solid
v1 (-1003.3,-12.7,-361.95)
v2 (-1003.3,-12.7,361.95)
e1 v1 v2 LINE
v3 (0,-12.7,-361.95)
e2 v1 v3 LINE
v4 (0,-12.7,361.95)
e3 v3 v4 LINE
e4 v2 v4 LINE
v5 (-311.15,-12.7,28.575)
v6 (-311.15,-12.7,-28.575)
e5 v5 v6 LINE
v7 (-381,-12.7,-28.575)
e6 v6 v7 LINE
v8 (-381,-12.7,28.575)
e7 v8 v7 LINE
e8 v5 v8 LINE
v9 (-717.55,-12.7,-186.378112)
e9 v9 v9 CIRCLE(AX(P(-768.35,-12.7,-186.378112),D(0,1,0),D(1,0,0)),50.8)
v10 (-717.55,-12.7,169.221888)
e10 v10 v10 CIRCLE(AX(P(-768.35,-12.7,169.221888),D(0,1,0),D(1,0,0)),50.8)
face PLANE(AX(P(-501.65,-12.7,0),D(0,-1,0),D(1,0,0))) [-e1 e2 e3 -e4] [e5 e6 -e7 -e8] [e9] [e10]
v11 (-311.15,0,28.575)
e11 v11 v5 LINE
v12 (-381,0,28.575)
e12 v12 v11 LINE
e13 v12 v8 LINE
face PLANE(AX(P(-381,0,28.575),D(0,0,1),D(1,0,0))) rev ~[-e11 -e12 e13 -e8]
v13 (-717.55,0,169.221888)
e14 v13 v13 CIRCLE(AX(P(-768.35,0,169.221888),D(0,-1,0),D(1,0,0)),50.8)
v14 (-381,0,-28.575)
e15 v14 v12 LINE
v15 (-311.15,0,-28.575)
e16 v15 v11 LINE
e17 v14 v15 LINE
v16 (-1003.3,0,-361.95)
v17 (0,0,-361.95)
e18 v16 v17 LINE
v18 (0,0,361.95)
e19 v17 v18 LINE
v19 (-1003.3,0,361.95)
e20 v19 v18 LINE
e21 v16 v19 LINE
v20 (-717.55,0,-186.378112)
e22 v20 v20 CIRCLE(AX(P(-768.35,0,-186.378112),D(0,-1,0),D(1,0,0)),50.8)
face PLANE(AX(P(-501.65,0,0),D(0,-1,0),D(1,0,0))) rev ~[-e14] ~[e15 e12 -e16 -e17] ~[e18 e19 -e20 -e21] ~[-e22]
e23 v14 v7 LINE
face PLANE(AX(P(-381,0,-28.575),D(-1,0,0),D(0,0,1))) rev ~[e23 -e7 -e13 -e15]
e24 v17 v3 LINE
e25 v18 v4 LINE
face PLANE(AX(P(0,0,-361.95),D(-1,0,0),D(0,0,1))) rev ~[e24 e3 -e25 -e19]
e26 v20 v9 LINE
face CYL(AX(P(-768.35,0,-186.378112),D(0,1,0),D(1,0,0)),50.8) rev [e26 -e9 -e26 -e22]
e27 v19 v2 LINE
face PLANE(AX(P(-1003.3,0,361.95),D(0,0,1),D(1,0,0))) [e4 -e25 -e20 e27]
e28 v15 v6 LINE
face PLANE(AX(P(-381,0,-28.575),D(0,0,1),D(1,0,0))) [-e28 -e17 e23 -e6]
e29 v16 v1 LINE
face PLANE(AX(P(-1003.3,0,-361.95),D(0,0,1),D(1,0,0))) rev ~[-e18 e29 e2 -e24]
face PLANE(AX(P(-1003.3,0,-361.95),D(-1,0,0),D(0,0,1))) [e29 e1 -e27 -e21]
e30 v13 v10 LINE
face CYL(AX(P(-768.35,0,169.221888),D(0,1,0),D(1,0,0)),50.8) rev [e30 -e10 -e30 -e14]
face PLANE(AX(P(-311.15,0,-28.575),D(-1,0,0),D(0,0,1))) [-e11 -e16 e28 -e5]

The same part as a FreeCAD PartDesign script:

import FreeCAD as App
import Part
import Sketcher

V = App.Vector
Q = App.Units.Quantity

doc = App.newDocument("Part")
body = doc.addObject("PartDesign::Body", "Body")

sketch1 = body.newObject("Sketcher::SketchObject", "Sketch")
sketch1.AttachmentSupport = (doc.getObject("XZ_Plane"), [""])
sketch1.MapMode = "FlatFace"
sketch1.addGeometry([
    Part.LineSegment(V(-1003, 362, 0), V(-1003, -362, 0)),
    Part.LineSegment(V(-1003, -362, 0), V(0, -362, 0)),
    Part.LineSegment(V(0, -362, 0), V(0, 362, 0)),
    Part.LineSegment(V(0, 362, 0), V(-1003, 362, 0)),
], False)
sketch1.addConstraint([
    Sketcher.Constraint("Coincident", 0, 2, 1, 1),
    Sketcher.Constraint("Coincident", 1, 2, 2, 1),
    Sketcher.Constraint("Coincident", 2, 2, 3, 1),
    Sketcher.Constraint("Coincident", 3, 2, 0, 1),
    Sketcher.Constraint("Vertical", 0),
    Sketcher.Constraint("Horizontal", 1),
    Sketcher.Constraint("Vertical", 2),
    Sketcher.Constraint("Horizontal", 3),
    Sketcher.Constraint("Symmetric", 1, 2, 2, 2, -1, 1),
    Sketcher.Constraint("DistanceX", 1, 1, 1, 2, Q("39.5 in")),
    Sketcher.Constraint("DistanceY", 0, 2, 0, 1, Q("28.5 in")),
])
pad1 = body.newObject("PartDesign::Pad", "Pad")
pad1.Profile = sketch1
pad1.Length = Q("0.5 in")

sketch2 = body.newObject("Sketcher::SketchObject", "Sketch001")
sketch2.AttachmentSupport = (doc.getObject("XZ_Plane"), [""])
sketch2.MapMode = "FlatFace"
sketch2.addGeometry([
    Part.LineSegment(V(-381, 29, 0), V(-381, -29, 0)),
    Part.LineSegment(V(-381, -29, 0), V(-311, -29, 0)),
    Part.LineSegment(V(-311, -29, 0), V(-311, 29, 0)),
    Part.LineSegment(V(-311, 29, 0), V(-381, 29, 0)),
], False)
sketch2.addConstraint([
    Sketcher.Constraint("Coincident", 0, 2, 1, 1),
    Sketcher.Constraint("Coincident", 1, 2, 2, 1),
    Sketcher.Constraint("Coincident", 2, 2, 3, 1),
    Sketcher.Constraint("Coincident", 3, 2, 0, 1),
    Sketcher.Constraint("Vertical", 0),
    Sketcher.Constraint("Horizontal", 1),
    Sketcher.Constraint("Vertical", 2),
    Sketcher.Constraint("Horizontal", 3),
    Sketcher.Constraint("DistanceX", 0, 2, -1, 1, Q("15 in")),
    Sketcher.Constraint("DistanceX", 1, 1, 1, 2, Q("2.75 in")),
    Sketcher.Constraint("DistanceY", 0, 2, 0, 1, Q("2.25 in")),
    Sketcher.Constraint("DistanceY", 0, 2, -1, 1, Q("1.125 in")),
])
pocket1 = body.newObject("PartDesign::Pocket", "Pocket")
pocket1.Profile = sketch2
pocket1.Type = "ThroughAll"
pocket1.Reversed = True

sketch3 = body.newObject("Sketcher::SketchObject", "Sketch002")
sketch3.AttachmentSupport = (doc.getObject("XZ_Plane"), [""])
sketch3.MapMode = "FlatFace"
sketch3.addGeometry([
    Part.Circle(V(-768, 169, 0), V(0, 0, 1), 51),
    Part.Circle(V(-768, -186, 0), V(0, 0, 1), 51),
], False)
sketch3.addConstraint([
    Sketcher.Constraint("Equal", 0, 1),
    Sketcher.Constraint("Vertical", 0, 3, 1, 3),
    Sketcher.Constraint("Diameter", 0, Q("4 in")),
    Sketcher.Constraint("DistanceY", 1, 3, 0, 3, Q("14 in")),
    Sketcher.Constraint("DistanceX", 0, 3, -1, 1, Q("30.25 in")),
    Sketcher.Constraint("DistanceY", -1, 1, 0, 3, Q("169.221888 mm")),
])
pocket2 = body.newObject("PartDesign::Pocket", "Pocket001")
pocket2.Profile = sketch3
pocket2.Type = "ThroughAll"
pocket2.Reversed = True

doc.recompute()
